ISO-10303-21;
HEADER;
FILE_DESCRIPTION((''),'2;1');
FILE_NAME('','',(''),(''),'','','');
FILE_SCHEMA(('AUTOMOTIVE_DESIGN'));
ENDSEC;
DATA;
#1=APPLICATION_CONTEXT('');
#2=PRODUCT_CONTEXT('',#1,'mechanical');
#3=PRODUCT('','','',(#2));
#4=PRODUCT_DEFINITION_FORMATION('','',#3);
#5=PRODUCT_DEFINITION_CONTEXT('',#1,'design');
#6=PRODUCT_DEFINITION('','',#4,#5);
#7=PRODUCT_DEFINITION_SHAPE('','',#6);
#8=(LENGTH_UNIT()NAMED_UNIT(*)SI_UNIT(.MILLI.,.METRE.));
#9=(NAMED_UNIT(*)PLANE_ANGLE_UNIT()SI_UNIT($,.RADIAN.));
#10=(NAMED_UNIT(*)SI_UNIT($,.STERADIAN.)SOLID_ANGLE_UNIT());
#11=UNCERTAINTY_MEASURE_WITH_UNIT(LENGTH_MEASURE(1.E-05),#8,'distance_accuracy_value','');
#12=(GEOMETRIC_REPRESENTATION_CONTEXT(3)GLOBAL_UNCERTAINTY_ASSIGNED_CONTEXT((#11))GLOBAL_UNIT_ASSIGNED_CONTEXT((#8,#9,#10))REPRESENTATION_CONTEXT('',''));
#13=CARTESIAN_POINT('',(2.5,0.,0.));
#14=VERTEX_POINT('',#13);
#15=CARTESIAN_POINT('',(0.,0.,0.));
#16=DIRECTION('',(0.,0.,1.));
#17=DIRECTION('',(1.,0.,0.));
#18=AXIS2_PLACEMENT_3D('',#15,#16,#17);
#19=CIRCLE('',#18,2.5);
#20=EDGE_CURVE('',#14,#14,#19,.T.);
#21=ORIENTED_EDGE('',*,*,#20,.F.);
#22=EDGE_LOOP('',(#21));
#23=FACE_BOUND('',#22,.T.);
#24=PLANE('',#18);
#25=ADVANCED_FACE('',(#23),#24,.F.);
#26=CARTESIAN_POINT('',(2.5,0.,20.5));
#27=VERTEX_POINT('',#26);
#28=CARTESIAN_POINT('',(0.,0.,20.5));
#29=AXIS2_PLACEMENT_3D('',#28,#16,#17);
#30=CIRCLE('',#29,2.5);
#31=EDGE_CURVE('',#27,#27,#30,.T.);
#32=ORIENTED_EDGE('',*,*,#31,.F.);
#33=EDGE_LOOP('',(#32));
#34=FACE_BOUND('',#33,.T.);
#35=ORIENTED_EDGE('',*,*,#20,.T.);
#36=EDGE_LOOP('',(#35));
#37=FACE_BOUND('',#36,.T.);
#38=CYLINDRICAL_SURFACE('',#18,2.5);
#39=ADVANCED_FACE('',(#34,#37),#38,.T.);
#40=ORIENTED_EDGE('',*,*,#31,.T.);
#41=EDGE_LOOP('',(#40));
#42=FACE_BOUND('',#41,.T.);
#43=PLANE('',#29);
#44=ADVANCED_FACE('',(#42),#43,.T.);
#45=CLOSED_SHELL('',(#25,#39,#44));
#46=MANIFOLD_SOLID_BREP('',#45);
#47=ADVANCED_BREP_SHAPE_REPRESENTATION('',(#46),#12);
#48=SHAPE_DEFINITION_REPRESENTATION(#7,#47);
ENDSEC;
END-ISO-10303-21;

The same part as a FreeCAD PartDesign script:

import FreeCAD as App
import Part
import Sketcher

doc = App.newDocument("Part")
body = doc.addObject("PartDesign::Body", "Body")

# Sketch on XY plane
sketch1 = body.newObject("Sketcher::SketchObject", "Sketch")
sketch1.AttachmentSupport = (doc.getObject("XY_Plane"), [""])
sketch1.MapMode = "FlatFace"
sketch1.addGeometry(Part.Circle(App.Vector(0, 0, 0), App.Vector(0, 0, 1), 2.5), False)
sketch1.addConstraint([
    Sketcher.Constraint("Coincident", 0, 3, -1, 1),
    Sketcher.Constraint("Diameter", 0, 5.0),
])

# Sketch on XY plane
sketch2 = body.newObject("Sketcher::SketchObject", "Sketch001")
sketch2.AttachmentSupport = (doc.getObject("XY_Plane"), [""])
sketch2.MapMode = "FlatFace"
sketch2.AttachmentOffset = App.Placement(App.Vector(0, 0, 20.5), App.Rotation())
sketch2.addGeometry(Part.Circle(App.Vector(0, 0, 0), App.Vector(0, 0, 1), 2.5), False)
sketch2.addConstraint([
    Sketcher.Constraint("Coincident", 0, 3, -1, 1),
    Sketcher.Constraint("Diameter", 0, 5.0),
])

additiveloft = body.newObject("PartDesign::AdditiveLoft", "AdditiveLoft")
additiveloft.Profile = sketch1
additiveloft.Sections = [sketch2]

doc.recompute()
